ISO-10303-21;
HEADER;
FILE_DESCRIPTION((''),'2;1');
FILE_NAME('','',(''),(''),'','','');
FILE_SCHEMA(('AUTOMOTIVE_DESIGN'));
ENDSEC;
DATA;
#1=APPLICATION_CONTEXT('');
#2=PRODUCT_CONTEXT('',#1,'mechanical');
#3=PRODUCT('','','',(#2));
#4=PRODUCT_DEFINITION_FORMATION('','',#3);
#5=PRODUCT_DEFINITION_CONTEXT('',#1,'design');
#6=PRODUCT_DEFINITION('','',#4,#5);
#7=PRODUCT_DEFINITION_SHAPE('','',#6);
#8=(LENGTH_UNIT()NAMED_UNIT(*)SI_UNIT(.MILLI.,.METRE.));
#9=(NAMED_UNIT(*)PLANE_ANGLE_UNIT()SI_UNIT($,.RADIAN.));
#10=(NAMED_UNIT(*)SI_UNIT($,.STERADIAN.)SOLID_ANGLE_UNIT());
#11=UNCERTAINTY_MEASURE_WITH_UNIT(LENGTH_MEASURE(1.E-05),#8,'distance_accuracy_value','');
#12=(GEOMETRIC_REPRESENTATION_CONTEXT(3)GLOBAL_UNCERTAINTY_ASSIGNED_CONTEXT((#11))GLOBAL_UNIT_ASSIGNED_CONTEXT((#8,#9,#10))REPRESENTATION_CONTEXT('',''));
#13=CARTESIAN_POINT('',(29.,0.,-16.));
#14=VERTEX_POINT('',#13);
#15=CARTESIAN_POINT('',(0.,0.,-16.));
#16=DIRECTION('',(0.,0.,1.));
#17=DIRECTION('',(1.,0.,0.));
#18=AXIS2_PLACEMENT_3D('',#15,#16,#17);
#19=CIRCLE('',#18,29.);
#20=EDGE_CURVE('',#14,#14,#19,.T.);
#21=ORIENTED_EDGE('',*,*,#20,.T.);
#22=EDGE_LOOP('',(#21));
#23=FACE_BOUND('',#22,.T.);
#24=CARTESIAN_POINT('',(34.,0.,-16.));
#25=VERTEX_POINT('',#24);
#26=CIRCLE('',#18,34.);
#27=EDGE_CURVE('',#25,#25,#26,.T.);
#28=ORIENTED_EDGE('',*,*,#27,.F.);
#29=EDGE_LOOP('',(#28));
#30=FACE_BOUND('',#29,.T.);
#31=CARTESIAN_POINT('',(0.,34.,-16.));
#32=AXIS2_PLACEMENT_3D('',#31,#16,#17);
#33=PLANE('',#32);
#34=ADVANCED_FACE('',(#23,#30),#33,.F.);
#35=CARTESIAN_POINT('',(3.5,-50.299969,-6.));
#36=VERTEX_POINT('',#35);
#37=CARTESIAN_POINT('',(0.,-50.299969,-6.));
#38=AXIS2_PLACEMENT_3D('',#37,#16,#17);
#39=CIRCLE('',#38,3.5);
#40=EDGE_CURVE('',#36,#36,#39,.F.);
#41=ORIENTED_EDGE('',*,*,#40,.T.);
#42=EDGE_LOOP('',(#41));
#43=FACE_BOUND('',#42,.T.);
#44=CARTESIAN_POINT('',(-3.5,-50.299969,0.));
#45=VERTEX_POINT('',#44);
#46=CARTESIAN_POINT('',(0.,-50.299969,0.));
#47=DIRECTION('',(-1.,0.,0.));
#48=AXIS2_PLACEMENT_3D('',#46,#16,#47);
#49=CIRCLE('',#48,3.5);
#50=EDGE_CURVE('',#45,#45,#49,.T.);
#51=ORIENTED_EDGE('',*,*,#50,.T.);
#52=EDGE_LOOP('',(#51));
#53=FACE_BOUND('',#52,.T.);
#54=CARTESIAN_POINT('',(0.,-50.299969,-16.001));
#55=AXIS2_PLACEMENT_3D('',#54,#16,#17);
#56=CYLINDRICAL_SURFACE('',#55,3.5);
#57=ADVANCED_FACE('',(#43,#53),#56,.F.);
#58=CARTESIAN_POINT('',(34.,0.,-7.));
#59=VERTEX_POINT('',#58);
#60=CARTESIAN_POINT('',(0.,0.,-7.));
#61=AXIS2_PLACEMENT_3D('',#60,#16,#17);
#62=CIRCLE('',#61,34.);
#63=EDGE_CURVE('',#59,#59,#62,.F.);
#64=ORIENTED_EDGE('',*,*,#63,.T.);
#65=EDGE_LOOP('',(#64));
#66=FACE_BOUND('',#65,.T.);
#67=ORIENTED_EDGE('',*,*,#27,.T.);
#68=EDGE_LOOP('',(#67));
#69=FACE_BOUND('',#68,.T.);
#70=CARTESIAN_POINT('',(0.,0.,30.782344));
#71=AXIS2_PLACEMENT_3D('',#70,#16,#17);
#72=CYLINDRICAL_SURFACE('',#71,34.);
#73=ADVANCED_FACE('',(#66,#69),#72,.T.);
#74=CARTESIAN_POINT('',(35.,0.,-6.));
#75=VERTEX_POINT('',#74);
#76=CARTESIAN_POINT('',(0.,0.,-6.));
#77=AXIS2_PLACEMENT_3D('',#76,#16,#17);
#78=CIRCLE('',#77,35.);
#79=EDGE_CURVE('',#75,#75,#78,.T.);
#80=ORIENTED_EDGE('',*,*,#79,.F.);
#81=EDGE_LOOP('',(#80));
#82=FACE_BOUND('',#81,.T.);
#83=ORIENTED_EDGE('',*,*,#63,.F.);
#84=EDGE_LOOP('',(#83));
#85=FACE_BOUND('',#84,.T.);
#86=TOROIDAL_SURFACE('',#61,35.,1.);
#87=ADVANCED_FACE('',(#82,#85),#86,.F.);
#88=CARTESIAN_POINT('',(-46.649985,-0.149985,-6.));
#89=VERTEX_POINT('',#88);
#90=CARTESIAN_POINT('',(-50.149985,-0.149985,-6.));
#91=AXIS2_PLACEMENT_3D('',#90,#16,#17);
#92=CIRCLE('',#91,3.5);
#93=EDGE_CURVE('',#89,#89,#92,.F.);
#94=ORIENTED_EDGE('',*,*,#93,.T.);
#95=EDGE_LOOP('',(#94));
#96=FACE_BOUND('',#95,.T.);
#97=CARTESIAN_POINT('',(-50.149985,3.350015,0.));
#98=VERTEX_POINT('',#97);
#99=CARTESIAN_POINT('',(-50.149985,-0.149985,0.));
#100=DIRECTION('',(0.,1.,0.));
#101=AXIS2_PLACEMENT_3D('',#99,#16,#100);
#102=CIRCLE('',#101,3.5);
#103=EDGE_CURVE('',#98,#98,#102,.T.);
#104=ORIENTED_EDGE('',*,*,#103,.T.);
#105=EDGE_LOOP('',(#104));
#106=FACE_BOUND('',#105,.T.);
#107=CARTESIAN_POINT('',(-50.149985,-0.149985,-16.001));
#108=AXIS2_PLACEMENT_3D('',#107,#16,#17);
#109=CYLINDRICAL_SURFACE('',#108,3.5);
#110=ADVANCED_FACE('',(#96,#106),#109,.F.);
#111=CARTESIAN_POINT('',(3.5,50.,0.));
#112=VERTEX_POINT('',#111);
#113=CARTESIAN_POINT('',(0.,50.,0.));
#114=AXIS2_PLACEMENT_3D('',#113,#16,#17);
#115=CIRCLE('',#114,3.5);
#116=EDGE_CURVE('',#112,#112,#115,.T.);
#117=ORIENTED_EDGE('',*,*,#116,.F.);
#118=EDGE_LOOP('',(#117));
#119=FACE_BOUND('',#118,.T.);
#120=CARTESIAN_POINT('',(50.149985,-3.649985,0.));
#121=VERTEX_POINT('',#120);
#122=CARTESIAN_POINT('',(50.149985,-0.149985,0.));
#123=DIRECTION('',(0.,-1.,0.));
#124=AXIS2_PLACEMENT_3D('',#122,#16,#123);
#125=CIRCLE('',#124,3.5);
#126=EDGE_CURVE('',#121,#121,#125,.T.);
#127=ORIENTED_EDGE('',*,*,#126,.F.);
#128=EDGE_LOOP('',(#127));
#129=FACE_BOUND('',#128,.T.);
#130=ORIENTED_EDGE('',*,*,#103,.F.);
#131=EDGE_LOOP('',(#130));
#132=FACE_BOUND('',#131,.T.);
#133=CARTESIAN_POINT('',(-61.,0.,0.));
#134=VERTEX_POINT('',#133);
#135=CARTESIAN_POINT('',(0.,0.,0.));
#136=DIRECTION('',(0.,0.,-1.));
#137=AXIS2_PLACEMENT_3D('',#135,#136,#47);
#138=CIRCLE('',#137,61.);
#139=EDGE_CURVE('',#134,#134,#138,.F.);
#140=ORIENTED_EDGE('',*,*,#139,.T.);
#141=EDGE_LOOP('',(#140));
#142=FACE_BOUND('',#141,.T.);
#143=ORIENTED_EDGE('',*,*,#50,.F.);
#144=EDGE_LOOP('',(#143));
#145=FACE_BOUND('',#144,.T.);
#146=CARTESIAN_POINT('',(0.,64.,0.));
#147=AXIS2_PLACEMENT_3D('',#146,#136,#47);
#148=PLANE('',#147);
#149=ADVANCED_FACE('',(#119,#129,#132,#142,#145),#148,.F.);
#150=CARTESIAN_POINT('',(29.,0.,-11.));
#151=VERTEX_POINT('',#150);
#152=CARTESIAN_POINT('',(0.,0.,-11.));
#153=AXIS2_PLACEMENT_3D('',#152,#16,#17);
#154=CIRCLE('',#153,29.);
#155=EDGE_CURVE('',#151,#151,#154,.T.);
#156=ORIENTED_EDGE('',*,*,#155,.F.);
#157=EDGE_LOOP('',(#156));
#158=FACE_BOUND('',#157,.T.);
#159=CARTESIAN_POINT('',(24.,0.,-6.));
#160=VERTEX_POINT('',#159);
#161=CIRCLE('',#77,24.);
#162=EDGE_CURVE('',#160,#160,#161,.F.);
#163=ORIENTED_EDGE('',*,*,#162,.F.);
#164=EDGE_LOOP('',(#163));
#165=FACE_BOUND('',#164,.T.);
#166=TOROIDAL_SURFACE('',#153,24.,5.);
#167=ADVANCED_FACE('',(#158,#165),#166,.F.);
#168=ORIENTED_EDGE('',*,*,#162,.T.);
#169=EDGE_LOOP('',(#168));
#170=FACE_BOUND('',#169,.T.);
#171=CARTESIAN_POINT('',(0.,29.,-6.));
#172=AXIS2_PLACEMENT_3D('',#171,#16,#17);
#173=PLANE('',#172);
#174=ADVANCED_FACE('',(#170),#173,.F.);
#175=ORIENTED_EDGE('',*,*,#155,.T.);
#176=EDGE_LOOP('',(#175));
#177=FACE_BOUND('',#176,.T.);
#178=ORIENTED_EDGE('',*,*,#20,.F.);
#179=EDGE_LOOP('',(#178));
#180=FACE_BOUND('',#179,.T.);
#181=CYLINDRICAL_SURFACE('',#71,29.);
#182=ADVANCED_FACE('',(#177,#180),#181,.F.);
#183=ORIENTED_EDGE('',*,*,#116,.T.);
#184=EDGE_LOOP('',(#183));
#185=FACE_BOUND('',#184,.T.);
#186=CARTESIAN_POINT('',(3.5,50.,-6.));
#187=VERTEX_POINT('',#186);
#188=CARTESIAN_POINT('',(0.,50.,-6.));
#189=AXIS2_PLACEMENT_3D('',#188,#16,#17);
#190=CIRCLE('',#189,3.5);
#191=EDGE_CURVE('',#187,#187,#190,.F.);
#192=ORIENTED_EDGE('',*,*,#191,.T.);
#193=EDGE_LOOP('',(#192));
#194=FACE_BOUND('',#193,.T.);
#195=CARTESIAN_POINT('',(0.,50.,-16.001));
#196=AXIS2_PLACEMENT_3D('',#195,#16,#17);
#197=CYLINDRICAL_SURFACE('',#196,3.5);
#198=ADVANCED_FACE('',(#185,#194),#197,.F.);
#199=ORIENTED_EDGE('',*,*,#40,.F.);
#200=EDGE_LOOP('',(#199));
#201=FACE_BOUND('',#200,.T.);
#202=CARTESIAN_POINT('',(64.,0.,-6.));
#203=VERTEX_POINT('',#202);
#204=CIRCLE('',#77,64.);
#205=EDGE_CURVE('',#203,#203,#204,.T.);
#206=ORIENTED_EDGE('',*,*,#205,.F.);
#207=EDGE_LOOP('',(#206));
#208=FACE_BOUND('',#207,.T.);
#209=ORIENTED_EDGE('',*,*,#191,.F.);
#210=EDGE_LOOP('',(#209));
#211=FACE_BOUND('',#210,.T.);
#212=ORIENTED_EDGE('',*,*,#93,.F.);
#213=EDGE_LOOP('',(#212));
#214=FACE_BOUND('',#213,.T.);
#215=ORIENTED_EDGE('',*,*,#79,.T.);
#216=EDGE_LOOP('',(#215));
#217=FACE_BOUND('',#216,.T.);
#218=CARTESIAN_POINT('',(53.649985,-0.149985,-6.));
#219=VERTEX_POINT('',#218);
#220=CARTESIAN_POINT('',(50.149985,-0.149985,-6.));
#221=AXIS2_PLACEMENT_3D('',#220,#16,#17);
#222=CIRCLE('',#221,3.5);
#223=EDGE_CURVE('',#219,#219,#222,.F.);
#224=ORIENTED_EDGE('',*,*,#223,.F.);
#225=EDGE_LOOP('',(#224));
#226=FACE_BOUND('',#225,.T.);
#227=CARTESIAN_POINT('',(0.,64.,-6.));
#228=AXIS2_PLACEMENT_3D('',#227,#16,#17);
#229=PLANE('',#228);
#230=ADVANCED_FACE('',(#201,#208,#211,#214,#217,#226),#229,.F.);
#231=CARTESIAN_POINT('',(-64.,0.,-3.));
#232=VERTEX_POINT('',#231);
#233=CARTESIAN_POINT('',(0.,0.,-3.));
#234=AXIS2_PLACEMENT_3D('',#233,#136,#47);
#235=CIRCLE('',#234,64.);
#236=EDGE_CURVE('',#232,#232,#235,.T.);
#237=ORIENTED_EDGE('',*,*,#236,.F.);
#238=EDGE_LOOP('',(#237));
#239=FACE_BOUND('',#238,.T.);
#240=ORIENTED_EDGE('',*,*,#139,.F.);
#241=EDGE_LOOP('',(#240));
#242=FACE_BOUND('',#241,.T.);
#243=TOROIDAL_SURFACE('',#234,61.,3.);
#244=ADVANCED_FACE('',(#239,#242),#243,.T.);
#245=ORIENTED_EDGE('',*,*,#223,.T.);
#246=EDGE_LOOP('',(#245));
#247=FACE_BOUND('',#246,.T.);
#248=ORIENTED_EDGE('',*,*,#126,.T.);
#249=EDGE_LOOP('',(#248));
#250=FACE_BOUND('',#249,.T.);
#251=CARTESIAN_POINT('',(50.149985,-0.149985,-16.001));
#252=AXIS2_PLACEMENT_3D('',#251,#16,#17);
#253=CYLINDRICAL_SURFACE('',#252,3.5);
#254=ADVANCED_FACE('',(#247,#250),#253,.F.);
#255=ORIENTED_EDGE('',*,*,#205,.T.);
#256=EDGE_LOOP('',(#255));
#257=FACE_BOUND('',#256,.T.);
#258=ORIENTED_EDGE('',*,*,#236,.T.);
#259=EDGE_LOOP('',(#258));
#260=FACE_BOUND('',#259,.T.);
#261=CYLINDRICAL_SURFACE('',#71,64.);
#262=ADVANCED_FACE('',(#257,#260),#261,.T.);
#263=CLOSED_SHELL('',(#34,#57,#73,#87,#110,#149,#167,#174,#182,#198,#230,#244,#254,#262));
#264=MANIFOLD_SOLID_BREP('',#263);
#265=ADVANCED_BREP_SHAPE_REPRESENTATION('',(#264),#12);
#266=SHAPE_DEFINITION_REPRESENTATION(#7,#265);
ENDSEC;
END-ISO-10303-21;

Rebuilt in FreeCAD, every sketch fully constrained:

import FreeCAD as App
import Part
import Sketcher
from FreeCAD import Vector


def edges_at(feature, points):
    """Names of the edges that pass closest to the given points."""
    edges = feature.Shape.Edges
    near = lambda p: min(range(len(edges)), key=lambda i: edges[i].distToShape(Part.Vertex(*p))[0])
    return sorted({f"Edge{near(p) + 1}" for p in points})

doc = App.newDocument("Part")
body = doc.addObject("PartDesign::Body", "Body")

# Sketch on YZ plane
sketch1 = body.newObject("Sketcher::SketchObject", "Sketch")
sketch1.AttachmentSupport = (doc.getObject("YZ_Plane"), [""])
sketch1.MapMode = "FlatFace"
sketch1.addGeometry([
    Part.LineSegment(Vector(64, 0, 0), Vector(0, 0, 0)),  # 0
    Part.LineSegment(Vector(0, 0, 0), Vector(0, -6, 0)),  # 1
    Part.LineSegment(Vector(0, -6, 0), Vector(29, -6, 0)),  # 2
    Part.LineSegment(Vector(29, -6, 0), Vector(29, -16, 0)),  # 3
    Part.LineSegment(Vector(29, -16, 0), Vector(34, -16, 0)),  # 4
    Part.LineSegment(Vector(34, -16, 0), Vector(34, -6, 0)),  # 5
    Part.LineSegment(Vector(34, -6, 0), Vector(64, -6, 0)),  # 6
    Part.LineSegment(Vector(64, -6, 0), Vector(64, 0, 0)),  # 7
], False)
sketch1.addConstraint([
    Sketcher.Constraint("Coincident", 0, 2, 1, 1),
    Sketcher.Constraint("Coincident", 1, 2, 2, 1),
    Sketcher.Constraint("Coincident", 2, 2, 3, 1),
    Sketcher.Constraint("Coincident", 3, 2, 4, 1),
    Sketcher.Constraint("Coincident", 4, 2, 5, 1),
    Sketcher.Constraint("Coincident", 5, 2, 6, 1),
    Sketcher.Constraint("Coincident", 6, 2, 7, 1),
    Sketcher.Constraint("Coincident", 7, 2, 0, 1),
    Sketcher.Constraint("Horizontal", 0),
    Sketcher.Constraint("Vertical", 1),
    Sketcher.Constraint("Horizontal", 2),
    Sketcher.Constraint("Vertical", 3),
    Sketcher.Constraint("Horizontal", 4),
    Sketcher.Constraint("Vertical", 5),
    Sketcher.Constraint("Horizontal", 6),
    Sketcher.Constraint("Vertical", 7),
    Sketcher.Constraint("Coincident", 0, 2, -1, 1),
    Sketcher.Constraint("Horizontal", 2, 2, 5, 2),
    Sketcher.Constraint("DistanceX", 0, 2, 0, 1, 64.0),
    Sketcher.Constraint("DistanceX", 2, 1, 2, 2, 29.0),
    Sketcher.Constraint("DistanceX", 4, 1, 4, 2, 5.0),
    Sketcher.Constraint("DistanceY", 1, 2, 1, 1, 6.0),
    Sketcher.Constraint("DistanceY", 3, 2, 3, 1, 10.0),
])
revolution = body.newObject("PartDesign::Revolution", "Revolution")
revolution.Profile = sketch1
revolution.ReferenceAxis = (sketch1, ["V_Axis"])
revolution.Angle = 360

# Sketch on XY plane
sketch2 = body.newObject("Sketcher::SketchObject", "Sketch001")
sketch2.AttachmentSupport = (doc.getObject("XY_Plane"), [""])
sketch2.MapMode = "FlatFace"
sketch2.addGeometry(Part.Circle(Vector(0, 50, 0), Vector(0, 0, 1), 3.5), False)
sketch2.addConstraint([
    Sketcher.Constraint("PointOnObject", 0, 3, -2),
    Sketcher.Constraint("Diameter", 0, 7.0),
    Sketcher.Constraint("DistanceY", -1, 1, 0, 3, 50.0),
])
pocket1 = body.newObject("PartDesign::Pocket", "Pocket")
pocket1.Profile = sketch2
pocket1.Length = 6
doc.recompute()

datumline = body.newObject("PartDesign::Line", "DatumLine")
datumline.Placement = App.Placement(Vector(0, -0.149985, 0), App.Rotation(Vector(0, 0, 1), Vector(0, 0, 1)))
polarpattern = body.newObject("PartDesign::PolarPattern", "PolarPattern")
polarpattern.Originals = [pocket1]
polarpattern.Axis = (datumline, [""])
polarpattern.Angle = 360
polarpattern.Occurrences = 4
body.Tip = polarpattern
doc.recompute()

fillet = body.newObject("PartDesign::Fillet", "Fillet")
fillet.Base = (polarpattern, edges_at(polarpattern, [(0, -64, 0)]))
fillet.Radius = 3
doc.recompute()

fillet2 = body.newObject("PartDesign::Fillet", "Fillet001")
fillet2.Base = (fillet, edges_at(fillet, [(0, -34, -6)]))
fillet2.Radius = 1
doc.recompute()

fillet3 = body.newObject("PartDesign::Fillet", "Fillet002")
fillet3.Base = (fillet2, edges_at(fillet2, [(0, -29, -6)]))
fillet3.Radius = 5

doc.recompute()
